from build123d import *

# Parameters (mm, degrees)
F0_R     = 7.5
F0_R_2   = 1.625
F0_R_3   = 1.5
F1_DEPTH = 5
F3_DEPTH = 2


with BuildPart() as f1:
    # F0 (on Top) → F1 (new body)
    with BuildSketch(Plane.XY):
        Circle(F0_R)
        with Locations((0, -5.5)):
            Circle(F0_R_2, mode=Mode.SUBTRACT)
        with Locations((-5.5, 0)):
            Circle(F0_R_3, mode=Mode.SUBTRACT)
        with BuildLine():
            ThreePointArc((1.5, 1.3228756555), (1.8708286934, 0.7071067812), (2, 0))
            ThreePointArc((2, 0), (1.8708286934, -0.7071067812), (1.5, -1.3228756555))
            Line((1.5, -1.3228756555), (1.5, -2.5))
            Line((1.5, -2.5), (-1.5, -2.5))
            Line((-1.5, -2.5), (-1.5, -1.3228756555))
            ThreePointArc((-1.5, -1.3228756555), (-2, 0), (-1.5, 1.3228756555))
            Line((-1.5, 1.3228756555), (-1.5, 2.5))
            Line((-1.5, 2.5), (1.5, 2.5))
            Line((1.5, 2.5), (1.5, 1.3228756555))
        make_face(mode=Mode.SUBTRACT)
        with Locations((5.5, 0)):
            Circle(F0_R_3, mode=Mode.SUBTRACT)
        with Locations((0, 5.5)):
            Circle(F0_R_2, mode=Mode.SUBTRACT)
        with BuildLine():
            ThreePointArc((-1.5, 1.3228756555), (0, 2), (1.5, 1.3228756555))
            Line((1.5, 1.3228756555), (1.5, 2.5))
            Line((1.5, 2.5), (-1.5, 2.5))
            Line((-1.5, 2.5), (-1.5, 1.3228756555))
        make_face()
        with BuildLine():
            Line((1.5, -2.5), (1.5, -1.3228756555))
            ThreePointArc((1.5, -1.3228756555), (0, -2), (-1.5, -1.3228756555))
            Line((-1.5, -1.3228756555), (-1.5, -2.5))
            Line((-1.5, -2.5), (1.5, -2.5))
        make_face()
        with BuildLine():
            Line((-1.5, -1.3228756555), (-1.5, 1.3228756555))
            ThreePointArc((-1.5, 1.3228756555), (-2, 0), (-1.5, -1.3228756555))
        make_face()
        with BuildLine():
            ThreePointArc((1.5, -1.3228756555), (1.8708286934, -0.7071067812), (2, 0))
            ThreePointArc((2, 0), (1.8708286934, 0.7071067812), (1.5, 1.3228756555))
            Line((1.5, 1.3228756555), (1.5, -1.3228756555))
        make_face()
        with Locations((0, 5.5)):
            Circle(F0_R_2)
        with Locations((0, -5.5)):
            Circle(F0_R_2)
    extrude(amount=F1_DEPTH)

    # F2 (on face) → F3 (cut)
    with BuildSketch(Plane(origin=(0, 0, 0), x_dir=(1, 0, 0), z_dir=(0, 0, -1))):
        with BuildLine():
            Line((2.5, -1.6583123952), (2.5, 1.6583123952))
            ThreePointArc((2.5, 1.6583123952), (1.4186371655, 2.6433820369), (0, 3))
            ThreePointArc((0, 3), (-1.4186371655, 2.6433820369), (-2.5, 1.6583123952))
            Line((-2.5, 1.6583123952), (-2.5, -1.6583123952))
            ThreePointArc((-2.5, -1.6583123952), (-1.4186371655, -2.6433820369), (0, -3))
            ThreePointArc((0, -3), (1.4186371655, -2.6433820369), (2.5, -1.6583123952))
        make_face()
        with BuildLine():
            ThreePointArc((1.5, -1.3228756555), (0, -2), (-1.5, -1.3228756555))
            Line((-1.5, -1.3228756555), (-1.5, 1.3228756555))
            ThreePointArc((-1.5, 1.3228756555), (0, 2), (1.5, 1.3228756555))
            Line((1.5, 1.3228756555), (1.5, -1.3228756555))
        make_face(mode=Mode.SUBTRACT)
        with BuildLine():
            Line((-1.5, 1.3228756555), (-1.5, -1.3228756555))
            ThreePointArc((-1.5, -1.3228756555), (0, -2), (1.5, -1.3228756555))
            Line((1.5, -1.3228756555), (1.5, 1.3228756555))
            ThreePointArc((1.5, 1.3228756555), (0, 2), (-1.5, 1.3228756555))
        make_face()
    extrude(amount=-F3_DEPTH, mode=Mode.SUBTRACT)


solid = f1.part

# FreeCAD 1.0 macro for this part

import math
import FreeCAD as App
import Part
import Sketcher

V = App.Vector
Q = App.Units.Quantity

doc = App.newDocument("Part")
params = doc.addObject("Spreadsheet::Sheet", "Params")
for row, (alias, value) in enumerate([
    ("sketch1_diameter", "15 mm"),
    ("sketch1_diameter2", "3 mm"),
    ("sketch1_radius", "2 mm"),
    ("pad1_length", "5 mm"),
    ("sketch2_radius", "3 mm"),
    ("pocket1_length", "2 mm"),
], start=1):
    params.set(f"A{row}", alias)
    params.set(f"B{row}", "=" + value)
    params.setAlias(f"B{row}", alias)

body = doc.addObject("PartDesign::Body", "Body")

sketch1 = body.newObject("Sketcher::SketchObject", "Sketch")
sketch1.AttachmentSupport = (doc.getObject("XY_Plane"), [""])
sketch1.MapMode = "FlatFace"
sketch1.addGeometry(Part.Circle(V(0, 0, 0), V(0, 0, 1), 7.5), False)
sketch1.addGeometry(Part.Circle(V(-5.5, 0, 0), V(0, 0, 1), 1.5), False)
sketch1.addGeometry(Part.ArcOfCircle(Part.Circle(V(0, 0, 0), V(0, 0, 1), 2), math.radians(-139), math.radians(-41)), False)
sketch1.addGeometry(Part.LineSegment(V(-1.5, -1.3, 0), V(-1.5, 1.3, 0)), False)
sketch1.addGeometry(Part.ArcOfCircle(Part.Circle(V(0, 0, 0), V(0, 0, 1), 2), math.radians(41), math.radians(139)), False)
sketch1.addGeometry(Part.LineSegment(V(1.5, 1.3, 0), V(1.5, -1.3, 0)), False)
sketch1.addGeometry(Part.Circle(V(5.5, 0, 0), V(0, 0, 1), 1.5), False)
sketch1.addConstraint(Sketcher.Constraint("Coincident", 2, 1, 3, 1))
sketch1.addConstraint(Sketcher.Constraint("Coincident", 3, 2, 4, 2))
sketch1.addConstraint(Sketcher.Constraint("Coincident", 4, 1, 5, 1))
sketch1.addConstraint(Sketcher.Constraint("Coincident", 5, 2, 2, 2))
sketch1.addConstraint(Sketcher.Constraint("Vertical", 3))
sketch1.addConstraint(Sketcher.Constraint("Vertical", 5))
sketch1.addConstraint(Sketcher.Constraint("Coincident", 0, 3, -1, 1))
sketch1.addConstraint(Sketcher.Constraint("Coincident", 2, 3, -1, 1))
sketch1.addConstraint(Sketcher.Constraint("Coincident", 4, 3, -1, 1))
sketch1.addConstraint(Sketcher.Constraint("Equal", 2, 4))
sketch1.addConstraint(Sketcher.Constraint("Equal", 1, 6))
sketch1.addConstraint(Sketcher.Constraint("Symmetric", 1, 3, 6, 3, -1, 1))
sketch1.addConstraint(Sketcher.Constraint("PointOnObject", 1, 3, -1))
sketch1.addConstraint(Sketcher.Constraint("Horizontal", 3, 2, 4, 1))
sketch1.addConstraint(Sketcher.Constraint("Diameter", 0, Q("15 mm")))
sketch1.addConstraint(Sketcher.Constraint("Diameter", 1, Q("3 mm")))
sketch1.addConstraint(Sketcher.Constraint("Radius", 2, Q("2 mm")))
sketch1.addConstraint(Sketcher.Constraint("DistanceX", 1, 3, 6, 3, Q("11 mm")))
sketch1.addConstraint(Sketcher.Constraint("DistanceX", 1, 3, 2, 1, Q("4 mm")))
sketch1.setExpression("Constraints[14]", "Params.sketch1_diameter")
sketch1.setExpression("Constraints[15]", "Params.sketch1_diameter2")
sketch1.setExpression("Constraints[16]", "Params.sketch1_radius")
pad1 = body.newObject("PartDesign::Pad", "Pad")
pad1.Profile = sketch1
pad1.setExpression("Length", "Params.pad1_length")

sketch2 = body.newObject("Sketcher::SketchObject", "Sketch001")
sketch2.AttachmentSupport = (doc.getObject("XY_Plane"), [""])
sketch2.MapMode = "FlatFace"
sketch2.addGeometry(Part.LineSegment(V(2.5, 1.7, 0), V(2.5, -1.7, 0)), False)
sketch2.addGeometry(Part.ArcOfCircle(Part.Circle(V(0, 0, 0), V(0, 0, 1), 3), math.radians(-90), math.radians(-34)), False)
sketch2.addGeometry(Part.ArcOfCircle(Part.Circle(V(0, 0, 0), V(0, 0, 1), 3), math.radians(-146), math.radians(-90)), False)
sketch2.addGeometry(Part.LineSegment(V(-2.5, -1.7, 0), V(-2.5, 1.7, 0)), False)
sketch2.addGeometry(Part.ArcOfCircle(Part.Circle(V(0, 0, 0), V(0, 0, 1), 3), math.radians(90), math.radians(146)), False)
sketch2.addGeometry(Part.ArcOfCircle(Part.Circle(V(0, 0, 0), V(0, 0, 1), 3), math.radians(34), math.radians(90)), False)
sketch2.addConstraint(Sketcher.Constraint("Coincident", 0, 2, 1, 2))
sketch2.addConstraint(Sketcher.Constraint("Tangent", 1, 1, 2, 2))
sketch2.addConstraint(Sketcher.Constraint("Coincident", 2, 1, 3, 1))
sketch2.addConstraint(Sketcher.Constraint("Coincident", 3, 2, 4, 2))
sketch2.addConstraint(Sketcher.Constraint("Tangent", 4, 1, 5, 2))
sketch2.addConstraint(Sketcher.Constraint("Coincident", 5, 1, 0, 1))
sketch2.addConstraint(Sketcher.Constraint("Vertical", 0))
sketch2.addConstraint(Sketcher.Constraint("Vertical", 3))
sketch2.addConstraint(Sketcher.Constraint("Coincident", 1, 3, -1, 1))
sketch2.addConstraint(Sketcher.Constraint("Coincident", 4, 3, -1, 1))
sketch2.addConstraint(Sketcher.Constraint("Equal", 1, 2))
sketch2.addConstraint(Sketcher.Constraint("Equal", 2, 4))
sketch2.addConstraint(Sketcher.Constraint("Equal", 4, 5))
sketch2.addConstraint(Sketcher.Constraint("PointOnObject", 1, 1, -2))
sketch2.addConstraint(Sketcher.Constraint("PointOnObject", 4, 1, -2))
sketch2.addConstraint(Sketcher.Constraint("Horizontal", 0, 2, 2, 1))
sketch2.addConstraint(Sketcher.Constraint("Radius", 1, Q("3 mm")))
sketch2.addConstraint(Sketcher.Constraint("DistanceX", -1, 1, 0, 2, Q("2.5 mm")))
sketch2.setExpression("Constraints[16]", "Params.sketch2_radius")
pocket1 = body.newObject("PartDesign::Pocket", "Pocket")
pocket1.Profile = sketch2
pocket1.setExpression("Length", "Params.pocket1_length")
pocket1.Reversed = True

doc.recompute()
